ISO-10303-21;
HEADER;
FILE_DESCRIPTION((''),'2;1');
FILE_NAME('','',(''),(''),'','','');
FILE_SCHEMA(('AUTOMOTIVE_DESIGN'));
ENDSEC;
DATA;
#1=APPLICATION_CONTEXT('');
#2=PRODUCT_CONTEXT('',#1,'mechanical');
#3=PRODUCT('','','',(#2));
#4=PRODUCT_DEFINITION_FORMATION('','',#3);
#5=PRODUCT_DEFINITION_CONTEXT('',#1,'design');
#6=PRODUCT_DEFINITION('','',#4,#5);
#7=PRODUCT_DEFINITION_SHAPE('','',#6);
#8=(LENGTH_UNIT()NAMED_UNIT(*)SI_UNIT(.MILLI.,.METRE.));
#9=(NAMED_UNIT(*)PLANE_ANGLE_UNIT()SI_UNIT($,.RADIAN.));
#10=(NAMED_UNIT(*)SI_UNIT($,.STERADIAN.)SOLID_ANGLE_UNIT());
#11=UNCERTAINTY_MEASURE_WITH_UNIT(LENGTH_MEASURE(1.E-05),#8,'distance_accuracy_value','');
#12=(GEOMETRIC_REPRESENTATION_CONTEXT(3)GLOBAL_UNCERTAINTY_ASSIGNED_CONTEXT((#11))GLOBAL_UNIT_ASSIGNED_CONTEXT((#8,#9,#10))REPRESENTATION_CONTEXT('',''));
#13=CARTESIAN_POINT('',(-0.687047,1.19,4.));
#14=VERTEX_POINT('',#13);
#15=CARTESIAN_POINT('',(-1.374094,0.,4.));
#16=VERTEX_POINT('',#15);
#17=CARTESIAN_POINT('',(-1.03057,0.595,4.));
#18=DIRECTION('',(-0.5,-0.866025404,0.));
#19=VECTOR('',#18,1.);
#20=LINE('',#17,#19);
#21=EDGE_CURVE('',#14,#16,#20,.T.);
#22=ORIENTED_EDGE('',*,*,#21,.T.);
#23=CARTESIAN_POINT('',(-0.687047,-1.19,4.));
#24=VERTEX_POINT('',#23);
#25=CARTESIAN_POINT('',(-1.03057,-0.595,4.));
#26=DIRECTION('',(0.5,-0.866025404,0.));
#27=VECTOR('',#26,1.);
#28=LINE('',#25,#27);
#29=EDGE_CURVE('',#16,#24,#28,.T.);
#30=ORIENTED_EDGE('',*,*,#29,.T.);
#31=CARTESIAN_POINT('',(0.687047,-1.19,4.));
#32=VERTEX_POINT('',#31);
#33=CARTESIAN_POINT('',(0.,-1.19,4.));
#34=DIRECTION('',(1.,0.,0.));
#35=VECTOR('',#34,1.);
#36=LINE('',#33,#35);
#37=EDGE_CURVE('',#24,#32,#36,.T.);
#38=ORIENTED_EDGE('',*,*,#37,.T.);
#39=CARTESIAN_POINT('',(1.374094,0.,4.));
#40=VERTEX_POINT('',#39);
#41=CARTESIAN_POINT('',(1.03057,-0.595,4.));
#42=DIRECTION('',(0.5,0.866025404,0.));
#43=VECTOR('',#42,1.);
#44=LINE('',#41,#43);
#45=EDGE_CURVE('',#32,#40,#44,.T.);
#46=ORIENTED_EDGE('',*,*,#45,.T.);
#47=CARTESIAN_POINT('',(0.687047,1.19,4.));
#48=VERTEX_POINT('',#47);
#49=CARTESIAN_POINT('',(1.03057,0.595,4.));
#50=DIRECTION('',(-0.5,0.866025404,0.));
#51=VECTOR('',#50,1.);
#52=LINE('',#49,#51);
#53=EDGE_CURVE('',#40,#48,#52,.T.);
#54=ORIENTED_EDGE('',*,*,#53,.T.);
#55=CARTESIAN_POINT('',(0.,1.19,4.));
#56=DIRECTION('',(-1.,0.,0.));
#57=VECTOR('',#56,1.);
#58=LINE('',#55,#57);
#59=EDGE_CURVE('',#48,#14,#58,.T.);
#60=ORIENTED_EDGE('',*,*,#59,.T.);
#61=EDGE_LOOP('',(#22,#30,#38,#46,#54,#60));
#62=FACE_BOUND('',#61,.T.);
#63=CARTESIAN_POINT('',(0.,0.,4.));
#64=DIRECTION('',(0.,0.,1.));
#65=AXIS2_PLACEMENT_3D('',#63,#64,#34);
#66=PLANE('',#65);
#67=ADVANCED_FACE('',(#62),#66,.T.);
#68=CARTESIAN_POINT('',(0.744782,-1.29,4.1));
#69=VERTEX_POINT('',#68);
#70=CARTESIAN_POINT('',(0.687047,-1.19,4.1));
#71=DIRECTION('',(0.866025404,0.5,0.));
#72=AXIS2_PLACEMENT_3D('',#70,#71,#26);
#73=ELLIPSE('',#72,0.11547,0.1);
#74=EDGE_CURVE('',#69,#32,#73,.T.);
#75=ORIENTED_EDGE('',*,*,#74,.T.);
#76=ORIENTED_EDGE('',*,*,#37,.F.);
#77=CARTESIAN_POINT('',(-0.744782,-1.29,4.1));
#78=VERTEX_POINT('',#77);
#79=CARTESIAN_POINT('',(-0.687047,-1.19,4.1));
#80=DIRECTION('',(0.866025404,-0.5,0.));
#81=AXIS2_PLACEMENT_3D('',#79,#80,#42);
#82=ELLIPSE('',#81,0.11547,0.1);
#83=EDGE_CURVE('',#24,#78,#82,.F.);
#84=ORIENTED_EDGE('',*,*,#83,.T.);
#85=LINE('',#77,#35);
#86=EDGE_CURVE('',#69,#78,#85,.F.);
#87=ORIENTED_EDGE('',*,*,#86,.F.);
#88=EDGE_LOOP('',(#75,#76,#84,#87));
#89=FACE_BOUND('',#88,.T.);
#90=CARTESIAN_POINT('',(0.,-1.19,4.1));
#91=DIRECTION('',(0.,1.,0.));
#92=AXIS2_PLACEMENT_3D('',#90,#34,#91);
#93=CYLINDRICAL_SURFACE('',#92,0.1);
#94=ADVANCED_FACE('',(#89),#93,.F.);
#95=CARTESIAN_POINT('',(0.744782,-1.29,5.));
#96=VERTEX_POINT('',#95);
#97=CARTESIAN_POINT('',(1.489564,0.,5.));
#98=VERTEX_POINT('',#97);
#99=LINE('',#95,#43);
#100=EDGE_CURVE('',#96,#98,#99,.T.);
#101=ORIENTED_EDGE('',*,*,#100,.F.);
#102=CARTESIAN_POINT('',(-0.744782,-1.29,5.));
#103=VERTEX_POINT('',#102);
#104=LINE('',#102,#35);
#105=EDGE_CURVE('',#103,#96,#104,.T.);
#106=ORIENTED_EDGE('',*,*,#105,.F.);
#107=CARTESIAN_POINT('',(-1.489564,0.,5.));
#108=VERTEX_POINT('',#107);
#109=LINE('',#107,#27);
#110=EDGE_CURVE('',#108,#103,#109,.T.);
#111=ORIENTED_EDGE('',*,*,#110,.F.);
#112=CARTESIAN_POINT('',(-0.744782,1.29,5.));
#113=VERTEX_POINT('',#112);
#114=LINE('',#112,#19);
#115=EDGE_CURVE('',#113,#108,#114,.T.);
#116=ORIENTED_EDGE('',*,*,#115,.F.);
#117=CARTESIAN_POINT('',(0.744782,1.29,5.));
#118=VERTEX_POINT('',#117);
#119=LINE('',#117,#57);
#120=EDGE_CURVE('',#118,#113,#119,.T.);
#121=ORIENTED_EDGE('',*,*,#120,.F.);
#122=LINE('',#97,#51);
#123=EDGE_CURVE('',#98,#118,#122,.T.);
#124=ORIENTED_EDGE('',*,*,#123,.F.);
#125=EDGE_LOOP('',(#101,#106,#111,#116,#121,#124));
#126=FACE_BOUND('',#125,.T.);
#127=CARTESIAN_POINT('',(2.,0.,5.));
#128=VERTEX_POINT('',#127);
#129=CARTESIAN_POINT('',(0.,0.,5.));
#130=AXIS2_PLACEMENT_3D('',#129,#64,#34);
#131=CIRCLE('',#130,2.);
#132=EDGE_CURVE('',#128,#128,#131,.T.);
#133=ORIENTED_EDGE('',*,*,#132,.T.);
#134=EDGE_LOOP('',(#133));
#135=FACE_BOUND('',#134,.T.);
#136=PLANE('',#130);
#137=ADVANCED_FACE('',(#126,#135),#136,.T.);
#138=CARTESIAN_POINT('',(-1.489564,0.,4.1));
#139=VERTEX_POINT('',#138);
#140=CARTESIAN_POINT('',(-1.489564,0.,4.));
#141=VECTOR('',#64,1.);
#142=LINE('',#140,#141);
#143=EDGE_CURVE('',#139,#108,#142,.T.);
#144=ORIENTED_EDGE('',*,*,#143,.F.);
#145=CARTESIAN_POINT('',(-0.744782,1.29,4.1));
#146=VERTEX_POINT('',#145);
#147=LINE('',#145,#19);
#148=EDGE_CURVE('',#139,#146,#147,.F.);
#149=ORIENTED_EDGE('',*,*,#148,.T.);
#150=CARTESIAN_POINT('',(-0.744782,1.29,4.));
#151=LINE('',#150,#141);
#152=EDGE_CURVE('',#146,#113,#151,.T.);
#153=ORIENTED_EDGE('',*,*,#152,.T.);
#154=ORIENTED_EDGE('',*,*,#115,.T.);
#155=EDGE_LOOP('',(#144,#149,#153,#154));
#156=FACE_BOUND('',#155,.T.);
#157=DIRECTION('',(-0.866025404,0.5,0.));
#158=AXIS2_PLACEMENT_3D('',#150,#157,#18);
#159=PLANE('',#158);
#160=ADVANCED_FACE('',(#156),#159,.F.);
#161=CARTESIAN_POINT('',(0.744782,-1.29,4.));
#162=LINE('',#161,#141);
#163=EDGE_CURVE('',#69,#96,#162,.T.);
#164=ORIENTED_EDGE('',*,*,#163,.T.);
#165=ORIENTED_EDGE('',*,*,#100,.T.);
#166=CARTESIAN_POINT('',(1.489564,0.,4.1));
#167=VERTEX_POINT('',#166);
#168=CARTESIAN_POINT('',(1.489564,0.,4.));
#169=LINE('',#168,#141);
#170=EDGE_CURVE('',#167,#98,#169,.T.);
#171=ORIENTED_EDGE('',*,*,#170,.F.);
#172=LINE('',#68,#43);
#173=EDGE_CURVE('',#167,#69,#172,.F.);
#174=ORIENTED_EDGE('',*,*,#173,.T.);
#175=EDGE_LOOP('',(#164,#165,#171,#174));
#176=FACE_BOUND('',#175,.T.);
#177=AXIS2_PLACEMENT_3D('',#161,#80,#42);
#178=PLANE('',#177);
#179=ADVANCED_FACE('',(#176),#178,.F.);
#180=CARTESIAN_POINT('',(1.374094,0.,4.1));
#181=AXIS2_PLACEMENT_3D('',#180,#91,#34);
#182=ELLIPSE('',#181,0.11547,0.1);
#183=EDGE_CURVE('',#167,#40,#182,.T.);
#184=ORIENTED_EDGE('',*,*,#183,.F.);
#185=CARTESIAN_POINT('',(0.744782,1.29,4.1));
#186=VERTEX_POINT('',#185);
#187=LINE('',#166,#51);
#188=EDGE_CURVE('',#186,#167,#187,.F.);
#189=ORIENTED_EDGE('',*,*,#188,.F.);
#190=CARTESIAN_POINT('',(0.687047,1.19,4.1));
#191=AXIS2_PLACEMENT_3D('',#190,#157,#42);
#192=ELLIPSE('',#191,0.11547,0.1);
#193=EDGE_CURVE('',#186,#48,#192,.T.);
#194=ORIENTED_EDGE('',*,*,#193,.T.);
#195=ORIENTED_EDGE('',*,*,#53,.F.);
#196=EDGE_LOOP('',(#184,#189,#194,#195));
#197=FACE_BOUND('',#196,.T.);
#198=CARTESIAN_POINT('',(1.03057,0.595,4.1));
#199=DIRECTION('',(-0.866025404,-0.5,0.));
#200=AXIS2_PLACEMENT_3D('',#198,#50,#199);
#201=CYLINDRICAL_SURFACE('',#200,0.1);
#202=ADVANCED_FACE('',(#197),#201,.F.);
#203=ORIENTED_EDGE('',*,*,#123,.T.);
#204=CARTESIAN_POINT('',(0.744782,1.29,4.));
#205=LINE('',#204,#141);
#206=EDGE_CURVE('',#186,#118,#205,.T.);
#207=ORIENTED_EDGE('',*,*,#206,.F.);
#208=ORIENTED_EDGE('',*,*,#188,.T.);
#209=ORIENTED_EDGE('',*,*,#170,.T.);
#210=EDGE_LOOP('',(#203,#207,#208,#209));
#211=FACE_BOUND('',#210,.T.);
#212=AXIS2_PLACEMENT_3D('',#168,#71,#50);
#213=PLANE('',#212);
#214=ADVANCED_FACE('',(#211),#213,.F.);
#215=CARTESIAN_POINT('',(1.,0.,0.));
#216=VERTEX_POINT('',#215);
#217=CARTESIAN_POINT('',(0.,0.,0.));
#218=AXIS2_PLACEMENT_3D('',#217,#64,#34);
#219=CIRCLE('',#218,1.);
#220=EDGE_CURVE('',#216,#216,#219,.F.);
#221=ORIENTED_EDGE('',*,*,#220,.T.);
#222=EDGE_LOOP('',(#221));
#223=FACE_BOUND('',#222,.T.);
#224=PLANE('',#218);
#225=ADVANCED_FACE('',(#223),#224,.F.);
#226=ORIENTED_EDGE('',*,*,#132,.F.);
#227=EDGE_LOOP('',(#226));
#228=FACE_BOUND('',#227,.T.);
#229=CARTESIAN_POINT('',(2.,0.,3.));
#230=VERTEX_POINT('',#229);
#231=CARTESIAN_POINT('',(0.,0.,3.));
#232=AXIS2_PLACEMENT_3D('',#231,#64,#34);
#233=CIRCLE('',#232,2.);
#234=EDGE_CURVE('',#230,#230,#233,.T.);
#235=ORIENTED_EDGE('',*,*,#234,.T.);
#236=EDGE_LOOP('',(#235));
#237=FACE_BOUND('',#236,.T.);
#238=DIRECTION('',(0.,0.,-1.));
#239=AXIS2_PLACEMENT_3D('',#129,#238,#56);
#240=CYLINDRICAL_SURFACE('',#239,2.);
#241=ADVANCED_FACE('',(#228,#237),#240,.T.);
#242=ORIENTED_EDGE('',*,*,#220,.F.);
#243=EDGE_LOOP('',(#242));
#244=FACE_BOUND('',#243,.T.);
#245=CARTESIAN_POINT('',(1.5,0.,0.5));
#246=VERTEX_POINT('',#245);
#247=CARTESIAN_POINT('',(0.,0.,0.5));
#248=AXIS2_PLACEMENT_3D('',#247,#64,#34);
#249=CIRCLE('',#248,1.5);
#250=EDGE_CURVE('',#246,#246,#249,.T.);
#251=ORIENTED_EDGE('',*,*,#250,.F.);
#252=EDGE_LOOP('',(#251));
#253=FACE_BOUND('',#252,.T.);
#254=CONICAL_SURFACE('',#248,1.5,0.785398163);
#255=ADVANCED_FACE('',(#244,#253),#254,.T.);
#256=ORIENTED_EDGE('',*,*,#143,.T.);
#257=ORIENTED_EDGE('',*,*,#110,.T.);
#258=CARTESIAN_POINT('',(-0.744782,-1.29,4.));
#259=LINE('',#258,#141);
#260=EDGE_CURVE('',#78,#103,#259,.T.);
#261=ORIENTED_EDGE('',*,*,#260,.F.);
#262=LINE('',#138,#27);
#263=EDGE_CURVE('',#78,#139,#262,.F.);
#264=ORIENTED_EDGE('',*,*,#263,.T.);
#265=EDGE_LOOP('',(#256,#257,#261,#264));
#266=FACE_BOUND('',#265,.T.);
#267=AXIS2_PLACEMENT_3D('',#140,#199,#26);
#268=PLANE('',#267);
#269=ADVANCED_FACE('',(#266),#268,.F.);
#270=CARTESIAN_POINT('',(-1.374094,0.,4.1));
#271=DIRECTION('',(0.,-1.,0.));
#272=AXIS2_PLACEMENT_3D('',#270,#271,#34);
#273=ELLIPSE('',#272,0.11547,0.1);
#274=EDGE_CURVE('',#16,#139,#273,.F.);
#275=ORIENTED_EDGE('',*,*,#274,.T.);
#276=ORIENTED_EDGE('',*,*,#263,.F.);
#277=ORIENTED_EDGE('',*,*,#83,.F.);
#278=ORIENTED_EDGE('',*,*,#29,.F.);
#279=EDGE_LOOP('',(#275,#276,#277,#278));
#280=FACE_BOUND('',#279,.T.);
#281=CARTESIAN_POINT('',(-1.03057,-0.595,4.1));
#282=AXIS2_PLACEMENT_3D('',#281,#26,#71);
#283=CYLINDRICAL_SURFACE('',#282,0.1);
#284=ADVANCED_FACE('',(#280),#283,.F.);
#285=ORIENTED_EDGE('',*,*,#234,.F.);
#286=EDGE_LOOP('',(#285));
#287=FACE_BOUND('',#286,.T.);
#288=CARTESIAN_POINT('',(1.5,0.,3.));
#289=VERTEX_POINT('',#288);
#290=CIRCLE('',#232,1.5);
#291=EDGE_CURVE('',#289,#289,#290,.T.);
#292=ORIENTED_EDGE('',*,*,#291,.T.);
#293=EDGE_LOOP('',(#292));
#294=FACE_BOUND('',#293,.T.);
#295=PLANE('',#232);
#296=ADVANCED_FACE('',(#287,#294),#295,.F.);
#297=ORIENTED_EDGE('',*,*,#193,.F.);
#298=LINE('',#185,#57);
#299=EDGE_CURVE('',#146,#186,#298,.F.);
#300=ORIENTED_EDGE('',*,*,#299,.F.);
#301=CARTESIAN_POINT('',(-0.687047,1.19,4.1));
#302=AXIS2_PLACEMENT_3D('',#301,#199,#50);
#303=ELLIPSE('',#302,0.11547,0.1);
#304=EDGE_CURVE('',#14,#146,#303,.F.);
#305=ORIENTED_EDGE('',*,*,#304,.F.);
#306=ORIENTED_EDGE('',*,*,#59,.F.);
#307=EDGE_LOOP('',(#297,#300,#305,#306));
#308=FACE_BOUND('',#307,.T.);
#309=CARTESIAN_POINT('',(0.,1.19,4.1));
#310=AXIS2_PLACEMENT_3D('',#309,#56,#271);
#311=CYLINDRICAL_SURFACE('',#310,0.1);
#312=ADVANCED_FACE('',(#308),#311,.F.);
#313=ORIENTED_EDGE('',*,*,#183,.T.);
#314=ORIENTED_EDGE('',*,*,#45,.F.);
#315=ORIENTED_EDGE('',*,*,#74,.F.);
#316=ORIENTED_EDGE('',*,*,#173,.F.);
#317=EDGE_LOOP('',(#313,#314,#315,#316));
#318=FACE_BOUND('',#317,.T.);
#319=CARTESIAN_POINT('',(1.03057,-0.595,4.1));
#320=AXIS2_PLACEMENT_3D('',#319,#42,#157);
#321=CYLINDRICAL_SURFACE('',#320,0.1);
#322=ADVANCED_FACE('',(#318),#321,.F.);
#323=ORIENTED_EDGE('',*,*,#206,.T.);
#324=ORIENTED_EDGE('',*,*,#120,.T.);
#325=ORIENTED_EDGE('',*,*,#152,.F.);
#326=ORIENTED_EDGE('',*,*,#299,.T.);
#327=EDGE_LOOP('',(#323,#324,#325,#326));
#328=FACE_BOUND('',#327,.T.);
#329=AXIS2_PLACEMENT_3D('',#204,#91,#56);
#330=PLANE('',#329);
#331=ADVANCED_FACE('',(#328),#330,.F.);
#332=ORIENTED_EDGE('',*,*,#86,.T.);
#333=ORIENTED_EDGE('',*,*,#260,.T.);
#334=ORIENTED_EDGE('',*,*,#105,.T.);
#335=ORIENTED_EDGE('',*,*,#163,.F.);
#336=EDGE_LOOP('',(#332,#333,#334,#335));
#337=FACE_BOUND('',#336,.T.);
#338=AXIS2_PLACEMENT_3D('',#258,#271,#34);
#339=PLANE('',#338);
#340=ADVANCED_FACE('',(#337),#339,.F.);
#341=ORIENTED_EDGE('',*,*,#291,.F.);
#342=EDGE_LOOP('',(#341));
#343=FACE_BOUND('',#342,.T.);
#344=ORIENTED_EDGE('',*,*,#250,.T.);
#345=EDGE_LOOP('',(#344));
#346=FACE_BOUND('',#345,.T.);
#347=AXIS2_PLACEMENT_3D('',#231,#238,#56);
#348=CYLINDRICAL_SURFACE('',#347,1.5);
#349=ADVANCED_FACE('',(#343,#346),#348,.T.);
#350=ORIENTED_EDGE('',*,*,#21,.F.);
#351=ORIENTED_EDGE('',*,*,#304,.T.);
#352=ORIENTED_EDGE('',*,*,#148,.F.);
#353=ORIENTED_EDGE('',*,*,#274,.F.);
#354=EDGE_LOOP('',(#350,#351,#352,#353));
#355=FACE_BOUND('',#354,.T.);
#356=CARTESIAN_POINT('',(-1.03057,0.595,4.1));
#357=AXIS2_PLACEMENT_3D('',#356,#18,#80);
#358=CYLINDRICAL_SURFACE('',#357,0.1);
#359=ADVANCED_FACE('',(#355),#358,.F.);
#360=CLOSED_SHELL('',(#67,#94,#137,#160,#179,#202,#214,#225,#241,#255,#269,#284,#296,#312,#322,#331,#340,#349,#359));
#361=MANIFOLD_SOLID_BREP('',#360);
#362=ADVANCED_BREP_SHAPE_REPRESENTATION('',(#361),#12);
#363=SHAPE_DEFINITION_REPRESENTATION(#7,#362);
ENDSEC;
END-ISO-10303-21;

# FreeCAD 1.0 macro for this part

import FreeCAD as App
import Part
import Sketcher

V = App.Vector
Q = App.Units.Quantity


def edges_at(feature, points):
    """Names of the edges that pass closest to the given points."""
    edges = feature.Shape.Edges
    near = lambda p: min(range(len(edges)), key=lambda i: edges[i].distToShape(Part.Vertex(*p))[0])
    return sorted({f"Edge{near(p) + 1}" for p in points})

doc = App.newDocument("Part")
params = doc.addObject("Spreadsheet::Sheet", "Params")
for row, (alias, value) in enumerate([
    ("sketch1_diameter", "3 mm"),
    ("pad1_length", "3 mm"),
    ("sketch2_diameter", "4 mm"),
    ("pad2_length", "2 mm"),
    ("pocket1_length", "1 mm"),
    ("chamfer_size", "0.5 mm"),
    ("fillet_radius", "0.1 mm"),
], start=1):
    params.set(f"A{row}", alias)
    params.set(f"B{row}", "=" + value)
    params.setAlias(f"B{row}", alias)

body = doc.addObject("PartDesign::Body", "Body")

sketch1 = body.newObject("Sketcher::SketchObject", "Sketch")
sketch1.AttachmentSupport = (doc.getObject("XY_Plane"), [""])
sketch1.MapMode = "FlatFace"
sketch1.addGeometry(Part.Circle(V(0, 0, 0), V(0, 0, 1), 1.5), False)
sketch1.addConstraint(Sketcher.Constraint("Coincident", 0, 3, -1, 1))
sketch1.addConstraint(Sketcher.Constraint("Diameter", 0, 3.0))
sketch1.setExpression("Constraints[1]", "Params.sketch1_diameter")
pad1 = body.newObject("PartDesign::Pad", "Pad")
pad1.Profile = sketch1
pad1.setExpression("Length", "Params.pad1_length")

sketch2 = body.newObject("Sketcher::SketchObject", "Sketch001")
sketch2.AttachmentSupport = (doc.getObject("XY_Plane"), [""])
sketch2.MapMode = "FlatFace"
sketch2.AttachmentOffset = App.Placement(V(0, 0, 3), App.Rotation())
sketch2.addGeometry(Part.Circle(V(0, 0, 0), V(0, 0, 1), 2), False)
sketch2.addConstraint(Sketcher.Constraint("Coincident", 0, 3, -1, 1))
sketch2.addConstraint(Sketcher.Constraint("Diameter", 0, 4.0))
sketch2.setExpression("Constraints[1]", "Params.sketch2_diameter")
pad2 = body.newObject("PartDesign::Pad", "Pad001")
pad2.Profile = sketch2
pad2.setExpression("Length", "Params.pad2_length")

sketch3 = body.newObject("Sketcher::SketchObject", "Sketch002")
sketch3.AttachmentSupport = (doc.getObject("XY_Plane"), [""])
sketch3.MapMode = "FlatFace"
sketch3.AttachmentOffset = App.Placement(V(0, 0, 5), App.Rotation())
sketch3.addGeometry(Part.LineSegment(V(1.5, 0, 0), V(0.7, 1.3, 0)), False)
sketch3.addGeometry(Part.LineSegment(V(0.7, 1.3, 0), V(-0.7, 1.3, 0)), False)
sketch3.addGeometry(Part.LineSegment(V(-0.7, 1.3, 0), V(-1.5, 0, 0)), False)
sketch3.addGeometry(Part.LineSegment(V(-1.5, 0, 0), V(-0.7, -1.3, 0)), False)
sketch3.addGeometry(Part.LineSegment(V(-0.7, -1.3, 0), V(0.7, -1.3, 0)), False)
sketch3.addGeometry(Part.LineSegment(V(0.7, -1.3, 0), V(1.5, 0, 0)), False)
sketch3.addConstraint(Sketcher.Constraint("Coincident", 0, 2, 1, 1))
sketch3.addConstraint(Sketcher.Constraint("Coincident", 1, 2, 2, 1))
sketch3.addConstraint(Sketcher.Constraint("Coincident", 2, 2, 3, 1))
sketch3.addConstraint(Sketcher.Constraint("Coincident", 3, 2, 4, 1))
sketch3.addConstraint(Sketcher.Constraint("Coincident", 4, 2, 5, 1))
sketch3.addConstraint(Sketcher.Constraint("Coincident", 5, 2, 0, 1))
sketch3.addConstraint(Sketcher.Constraint("Horizontal", 1))
sketch3.addConstraint(Sketcher.Constraint("Horizontal", 4))
sketch3.addConstraint(Sketcher.Constraint("Symmetric", 0, 2, 3, 2, -1, 1))
sketch3.addConstraint(Sketcher.Constraint("Symmetric", 2, 2, 5, 2, -1, 1))
sketch3.addConstraint(Sketcher.Constraint("PointOnObject", 2, 2, -1))
sketch3.addConstraint(Sketcher.Constraint("Parallel", 2, 5))
sketch3.addConstraint(Sketcher.Constraint("Vertical", 1, 2, 3, 2))
sketch3.addConstraint(Sketcher.Constraint("Angle", 0, Q("120 deg")))
sketch3.addConstraint(Sketcher.Constraint("DistanceY", -1, 1, 0, 2, 1.29))
sketch3.addConstraint(Sketcher.Constraint("DistanceX", 1, 2, 1, 1, 1.489564))
pocket1 = body.newObject("PartDesign::Pocket", "Pocket")
pocket1.Profile = sketch3
pocket1.setExpression("Length", "Params.pocket1_length")
doc.recompute()

chamfer = body.newObject("PartDesign::Chamfer", "Chamfer")
chamfer.Base = (pocket1, edges_at(pocket1, [(-1.5, 0, 0)]))
chamfer.setExpression("Size", "Params.chamfer_size")
doc.recompute()

fillet = body.newObject("PartDesign::Fillet", "Fillet")
fillet.Base = (chamfer, edges_at(chamfer, [
    (1.117, -0.645, 4),
    (0, -1.29, 4),
    (-1.117, -0.645, 4),
    (-1.117, 0.645, 4),
    (0, 1.29, 4),
    (1.117, 0.645, 4),
]))
fillet.setExpression("Radius", "Params.fillet_radius")

doc.recompute()
